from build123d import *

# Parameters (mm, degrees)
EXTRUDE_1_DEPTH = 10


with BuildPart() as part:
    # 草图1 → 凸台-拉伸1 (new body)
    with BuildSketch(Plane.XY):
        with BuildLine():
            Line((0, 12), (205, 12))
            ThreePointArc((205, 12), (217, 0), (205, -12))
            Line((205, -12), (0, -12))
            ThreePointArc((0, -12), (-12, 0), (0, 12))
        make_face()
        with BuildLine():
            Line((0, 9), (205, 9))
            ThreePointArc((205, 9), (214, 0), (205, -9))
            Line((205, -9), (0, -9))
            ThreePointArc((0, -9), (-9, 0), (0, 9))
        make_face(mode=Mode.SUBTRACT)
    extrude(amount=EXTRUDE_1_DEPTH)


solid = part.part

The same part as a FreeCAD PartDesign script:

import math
import FreeCAD as App
import Part
import Sketcher

V = App.Vector

doc = App.newDocument("Part")
body = doc.addObject("PartDesign::Body", "Body")

# Sketch on XY plane
sketch1 = body.newObject("Sketcher::SketchObject", "Sketch")
sketch1.AttachmentSupport = (doc.getObject("XY_Plane"), [""])
sketch1.MapMode = "FlatFace"
sketch1.addGeometry([
    Part.LineSegment(V(205, 12, 0), V(0, 12, 0)),  # 0
    Part.ArcOfCircle(Part.Circle(V(0, 0, 0), V(0, 0, 1), 12), math.radians(90), math.radians(270)),  # 1
    Part.LineSegment(V(0, -12, 0), V(205, -12, 0)),  # 2
    Part.ArcOfCircle(Part.Circle(V(205, 0, 0), V(0, 0, 1), 12), math.radians(-90), math.radians(90)),  # 3
    Part.LineSegment(V(0, 9, 0), V(205, 9, 0)),  # 4
    Part.ArcOfCircle(Part.Circle(V(205, 0, 0), V(0, 0, 1), 9), math.radians(-90), math.radians(90)),  # 5
    Part.LineSegment(V(205, -9, 0), V(0, -9, 0)),  # 6
    Part.ArcOfCircle(Part.Circle(V(0, 0, 0), V(0, 0, 1), 9), math.radians(90), math.radians(270)),  # 7
], False)
sketch1.addConstraint([
    Sketcher.Constraint("Tangent", 0, 2, 1, 1),
    Sketcher.Constraint("Tangent", 1, 2, 2, 1),
    Sketcher.Constraint("Tangent", 2, 2, 3, 1),
    Sketcher.Constraint("Tangent", 3, 2, 0, 1),
    Sketcher.Constraint("Tangent", 4, 2, 5, 2),
    Sketcher.Constraint("Tangent", 5, 1, 6, 1),
    Sketcher.Constraint("Tangent", 6, 2, 7, 2),
    Sketcher.Constraint("Tangent", 7, 1, 4, 1),
    Sketcher.Constraint("Horizontal", 0),
    Sketcher.Constraint("Horizontal", 2),
    Sketcher.Constraint("Horizontal", 4),
    Sketcher.Constraint("Horizontal", 6),
    Sketcher.Constraint("Coincident", 1, 3, -1, 1),
    Sketcher.Constraint("Coincident", 7, 3, -1, 1),
    Sketcher.Constraint("Vertical", 5, 3, 2, 2),
    Sketcher.Constraint("Radius", 1, 12.0),
    Sketcher.Constraint("Radius", 5, 9.0),
    Sketcher.Constraint("DistanceX", 0, 2, 0, 1, 205.0),
])
pad1 = body.newObject("PartDesign::Pad", "Pad")
pad1.Profile = sketch1
pad1.Length = 10

doc.recompute()
